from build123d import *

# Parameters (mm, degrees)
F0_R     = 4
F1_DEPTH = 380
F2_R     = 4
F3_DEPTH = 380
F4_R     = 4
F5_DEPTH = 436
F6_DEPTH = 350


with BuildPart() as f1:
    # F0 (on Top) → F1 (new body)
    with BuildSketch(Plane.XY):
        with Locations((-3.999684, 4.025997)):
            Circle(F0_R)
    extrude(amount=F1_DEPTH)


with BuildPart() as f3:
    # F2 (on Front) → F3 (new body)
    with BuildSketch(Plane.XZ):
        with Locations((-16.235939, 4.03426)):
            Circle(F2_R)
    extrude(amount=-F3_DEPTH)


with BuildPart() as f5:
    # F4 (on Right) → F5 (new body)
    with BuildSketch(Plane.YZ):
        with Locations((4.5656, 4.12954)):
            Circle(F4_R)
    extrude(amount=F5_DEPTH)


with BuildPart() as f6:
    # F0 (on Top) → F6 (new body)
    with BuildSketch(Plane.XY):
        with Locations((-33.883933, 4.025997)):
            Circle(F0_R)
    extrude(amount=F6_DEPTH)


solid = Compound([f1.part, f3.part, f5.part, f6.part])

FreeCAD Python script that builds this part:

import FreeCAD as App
import Part
import Sketcher
Q = App.Units.Quantity

doc = App.newDocument("Part")
body = doc.addObject("PartDesign::Body", "Body")

sketch1 = body.newObject("Sketcher::SketchObject", "Sketch")
sketch1.AttachmentSupport = (doc.getObject("XY_Plane"), [""])
sketch1.MapMode = "FlatFace"
sketch1.addGeometry(Part.Circle(App.Vector(-4, 4, 0), App.Vector(0, 0, 1), 4), False)
sketch1.addConstraint([
    Sketcher.Constraint("Diameter", 0, Q("8 mm")),
    Sketcher.Constraint("DistanceX", 0, 3, -1, 1, Q("3.999684 mm")),
    Sketcher.Constraint("DistanceY", -1, 1, 0, 3, Q("4.025997 mm")),
])
pad1 = body.newObject("PartDesign::Pad", "Pad")
pad1.Profile = sketch1
pad1.Length = 380
body2 = doc.addObject("PartDesign::Body", "Body001")

sketch2 = body2.newObject("Sketcher::SketchObject", "Sketch001")
sketch2.AttachmentSupport = (doc.getObject("XZ_Plane001"), [""])
sketch2.MapMode = "FlatFace"
sketch2.addGeometry(Part.Circle(App.Vector(-16.2, 4, 0), App.Vector(0, 0, 1), 4), False)
sketch2.addConstraint([
    Sketcher.Constraint("Diameter", 0, Q("8 mm")),
    Sketcher.Constraint("DistanceX", 0, 3, -1, 1, Q("16.235939 mm")),
    Sketcher.Constraint("DistanceY", -1, 1, 0, 3, Q("4.03426 mm")),
])
pad2 = body2.newObject("PartDesign::Pad", "Pad001")
pad2.Profile = sketch2
pad2.Length = 380
pad2.Reversed = True
body3 = doc.addObject("PartDesign::Body", "Body002")

sketch3 = body3.newObject("Sketcher::SketchObject", "Sketch002")
sketch3.AttachmentSupport = (doc.getObject("YZ_Plane002"), [""])
sketch3.MapMode = "FlatFace"
sketch3.addGeometry(Part.Circle(App.Vector(4.6, 4.1, 0), App.Vector(0, 0, 1), 4), False)
sketch3.addConstraint([
    Sketcher.Constraint("Diameter", 0, Q("8 mm")),
    Sketcher.Constraint("DistanceX", -1, 1, 0, 3, Q("4.5656 mm")),
    Sketcher.Constraint("DistanceY", -1, 1, 0, 3, Q("4.12954 mm")),
])
pad3 = body3.newObject("PartDesign::Pad", "Pad002")
pad3.Profile = sketch3
pad3.Length = 436
body4 = doc.addObject("PartDesign::Body", "Body003")

sketch4 = body4.newObject("Sketcher::SketchObject", "Sketch003")
sketch4.AttachmentSupport = (doc.getObject("XY_Plane003"), [""])
sketch4.MapMode = "FlatFace"
sketch4.addGeometry(Part.Circle(App.Vector(-33.9, 4, 0), App.Vector(0, 0, 1), 4), False)
sketch4.addConstraint([
    Sketcher.Constraint("Diameter", 0, Q("8 mm")),
    Sketcher.Constraint("DistanceX", 0, 3, -1, 1, Q("33.883933 mm")),
    Sketcher.Constraint("DistanceY", -1, 1, 0, 3, Q("4.025997 mm")),
])
pad4 = body4.newObject("PartDesign::Pad", "Pad003")
pad4.Profile = sketch4
pad4.Length = 350

doc.recompute()
